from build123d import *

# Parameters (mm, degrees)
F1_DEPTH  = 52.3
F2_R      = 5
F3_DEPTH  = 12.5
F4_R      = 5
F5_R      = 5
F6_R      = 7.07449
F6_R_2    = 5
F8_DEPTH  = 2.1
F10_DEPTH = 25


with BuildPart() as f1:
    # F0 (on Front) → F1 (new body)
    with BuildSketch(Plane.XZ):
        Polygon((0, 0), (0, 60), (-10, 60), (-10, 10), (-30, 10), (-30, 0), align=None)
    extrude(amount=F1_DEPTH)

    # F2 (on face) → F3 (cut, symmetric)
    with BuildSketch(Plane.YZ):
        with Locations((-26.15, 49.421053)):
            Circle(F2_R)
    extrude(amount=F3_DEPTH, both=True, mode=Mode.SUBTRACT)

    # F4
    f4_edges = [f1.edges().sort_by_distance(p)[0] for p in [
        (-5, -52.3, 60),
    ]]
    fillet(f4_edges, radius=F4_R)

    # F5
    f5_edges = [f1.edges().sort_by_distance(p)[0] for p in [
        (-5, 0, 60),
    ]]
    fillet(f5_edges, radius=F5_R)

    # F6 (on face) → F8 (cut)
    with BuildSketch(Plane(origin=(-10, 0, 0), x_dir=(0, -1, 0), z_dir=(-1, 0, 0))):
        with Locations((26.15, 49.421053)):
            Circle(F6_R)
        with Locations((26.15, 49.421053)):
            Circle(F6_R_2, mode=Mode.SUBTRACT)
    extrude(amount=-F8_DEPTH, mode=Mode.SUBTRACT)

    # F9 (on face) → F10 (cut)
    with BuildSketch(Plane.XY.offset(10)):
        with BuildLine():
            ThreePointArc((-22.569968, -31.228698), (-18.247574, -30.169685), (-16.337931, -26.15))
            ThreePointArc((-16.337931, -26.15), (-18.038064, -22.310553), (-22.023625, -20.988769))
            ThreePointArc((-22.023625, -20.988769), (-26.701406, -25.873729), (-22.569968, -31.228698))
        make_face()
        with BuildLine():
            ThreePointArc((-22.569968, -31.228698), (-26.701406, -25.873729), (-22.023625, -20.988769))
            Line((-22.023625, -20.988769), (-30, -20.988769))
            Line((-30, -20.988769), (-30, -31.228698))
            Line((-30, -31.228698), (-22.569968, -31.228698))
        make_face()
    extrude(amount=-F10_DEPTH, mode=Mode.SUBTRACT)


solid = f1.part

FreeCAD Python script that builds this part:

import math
import FreeCAD as App
import Part
import Sketcher
Q = App.Units.Quantity


def edges_at(feature, points):
    """Names of the edges that pass closest to the given points."""
    edges = feature.Shape.Edges
    near = lambda p: min(range(len(edges)), key=lambda i: edges[i].distToShape(Part.Vertex(*p))[0])
    return sorted({f"Edge{near(p) + 1}" for p in points})

doc = App.newDocument("Part")
body = doc.addObject("PartDesign::Body", "Body")

sketch1 = body.newObject("Sketcher::SketchObject", "Sketch")
sketch1.AttachmentSupport = (doc.getObject("XZ_Plane"), [""])
sketch1.MapMode = "FlatFace"
sketch1.addGeometry(Part.LineSegment(App.Vector(0, 0, 0), App.Vector(0, 60, 0)), False)
sketch1.addGeometry(Part.LineSegment(App.Vector(0, 60, 0), App.Vector(-10, 60, 0)), False)
sketch1.addGeometry(Part.LineSegment(App.Vector(-10, 60, 0), App.Vector(-10, 10, 0)), False)
sketch1.addGeometry(Part.LineSegment(App.Vector(-10, 10, 0), App.Vector(-30, 10, 0)), False)
sketch1.addGeometry(Part.LineSegment(App.Vector(-30, 10, 0), App.Vector(-30, 0, 0)), False)
sketch1.addGeometry(Part.LineSegment(App.Vector(-30, 0, 0), App.Vector(0, 0, 0)), False)
sketch1.addConstraint(Sketcher.Constraint("Coincident", 0, 2, 1, 1))
sketch1.addConstraint(Sketcher.Constraint("Coincident", 1, 2, 2, 1))
sketch1.addConstraint(Sketcher.Constraint("Coincident", 2, 2, 3, 1))
sketch1.addConstraint(Sketcher.Constraint("Coincident", 3, 2, 4, 1))
sketch1.addConstraint(Sketcher.Constraint("Coincident", 4, 2, 5, 1))
sketch1.addConstraint(Sketcher.Constraint("Coincident", 5, 2, 0, 1))
sketch1.addConstraint(Sketcher.Constraint("Vertical", 0))
sketch1.addConstraint(Sketcher.Constraint("Horizontal", 1))
sketch1.addConstraint(Sketcher.Constraint("Vertical", 2))
sketch1.addConstraint(Sketcher.Constraint("Horizontal", 3))
sketch1.addConstraint(Sketcher.Constraint("Vertical", 4))
sketch1.addConstraint(Sketcher.Constraint("Horizontal", 5))
sketch1.addConstraint(Sketcher.Constraint("Coincident", 5, 2, -1, 1))
sketch1.addConstraint(Sketcher.Constraint("Equal", 1, 4))
sketch1.addConstraint(Sketcher.Constraint("DistanceX", 1, 2, 1, 1, Q("10 mm")))
sketch1.addConstraint(Sketcher.Constraint("DistanceX", 3, 2, 3, 1, Q("20 mm")))
sketch1.addConstraint(Sketcher.Constraint("DistanceY", 0, 1, 0, 2, Q("60 mm")))
pad1 = body.newObject("PartDesign::Pad", "Pad")
pad1.Profile = sketch1
pad1.Length = 52.3

sketch2 = body.newObject("Sketcher::SketchObject", "Sketch001")
sketch2.AttachmentSupport = (doc.getObject("YZ_Plane"), [""])
sketch2.MapMode = "FlatFace"
sketch2.addGeometry(Part.Circle(App.Vector(-26, 49, 0), App.Vector(0, 0, 1), 5), False)
sketch2.addConstraint(Sketcher.Constraint("Diameter", 0, Q("10 mm")))
sketch2.addConstraint(Sketcher.Constraint("DistanceX", 0, 3, -1, 1, Q("26.15 mm")))
sketch2.addConstraint(Sketcher.Constraint("DistanceY", -1, 1, 0, 3, Q("49.421053 mm")))
pocket1 = body.newObject("PartDesign::Pocket", "Pocket")
pocket1.Profile = sketch2
pocket1.Length = 25
pocket1.Midplane = True
doc.recompute()

fillet = body.newObject("PartDesign::Fillet", "Fillet")
fillet.Base = (pocket1, edges_at(pocket1, [(-5, -52.3, 60)]))
fillet.Radius = 5
doc.recompute()

fillet2 = body.newObject("PartDesign::Fillet", "Fillet001")
fillet2.Base = (fillet, edges_at(fillet, [(-5, 0, 60)]))
fillet2.Radius = 5

sketch3 = body.newObject("Sketcher::SketchObject", "Sketch002")
sketch3.AttachmentSupport = (doc.getObject("YZ_Plane"), [""])
sketch3.MapMode = "FlatFace"
sketch3.AttachmentOffset = App.Placement(App.Vector(0, 0, -10), App.Rotation())
sketch3.addGeometry(Part.Circle(App.Vector(-26, 49, 0), App.Vector(0, 0, 1), 7), False)
sketch3.addGeometry(Part.Circle(App.Vector(-26, 49, 0), App.Vector(0, 0, 1), 5), False)
sketch3.addConstraint(Sketcher.Constraint("Coincident", 1, 3, 0, 3))
sketch3.addConstraint(Sketcher.Constraint("Diameter", 1, Q("10 mm")))
sketch3.addConstraint(Sketcher.Constraint("Diameter", 0, Q("14.14898 mm")))
sketch3.addConstraint(Sketcher.Constraint("DistanceX", 0, 3, -1, 1, Q("26.15 mm")))
sketch3.addConstraint(Sketcher.Constraint("DistanceY", -1, 1, 0, 3, Q("49.421053 mm")))
pocket2 = body.newObject("PartDesign::Pocket", "Pocket001")
pocket2.Profile = sketch3
pocket2.Length = 2.1
pocket2.Reversed = True

sketch4 = body.newObject("Sketcher::SketchObject", "Sketch003")
sketch4.AttachmentSupport = (doc.getObject("XY_Plane"), [""])
sketch4.MapMode = "FlatFace"
sketch4.AttachmentOffset = App.Placement(App.Vector(0, 0, 10), App.Rotation())
sketch4.addGeometry(Part.ArcOfCircle(Part.Circle(App.Vector(-22, -26, 0), App.Vector(0, 0, 1), 5), math.radians(-102), math.radians(0)), False)
sketch4.addGeometry(Part.ArcOfCircle(Part.Circle(App.Vector(-22, -26, 0), App.Vector(0, 0, 1), 5), math.radians(0), math.radians(96)), False)
sketch4.addGeometry(Part.LineSegment(App.Vector(-22, -21, 0), App.Vector(-30, -21, 0)), False)
sketch4.addGeometry(Part.LineSegment(App.Vector(-30, -21, 0), App.Vector(-30, -31, 0)), False)
sketch4.addGeometry(Part.LineSegment(App.Vector(-30, -31, 0), App.Vector(-23, -31, 0)), False)
sketch4.addConstraint(Sketcher.Constraint("Tangent", 0, 2, 1, 1))
sketch4.addConstraint(Sketcher.Constraint("Coincident", 1, 2, 2, 1))
sketch4.addConstraint(Sketcher.Constraint("Coincident", 2, 2, 3, 1))
sketch4.addConstraint(Sketcher.Constraint("Coincident", 3, 2, 4, 1))
sketch4.addConstraint(Sketcher.Constraint("Coincident", 4, 2, 0, 1))
sketch4.addConstraint(Sketcher.Constraint("Horizontal", 2))
sketch4.addConstraint(Sketcher.Constraint("Vertical", 3))
sketch4.addConstraint(Sketcher.Constraint("Horizontal", 4))
sketch4.addConstraint(Sketcher.Constraint("Equal", 0, 1))
sketch4.addConstraint(Sketcher.Constraint("Horizontal", 1, 3, 0, 2))
sketch4.addConstraint(Sketcher.Constraint("DistanceX", 2, 2, -1, 1, Q("30 mm")))
sketch4.addConstraint(Sketcher.Constraint("DistanceY", 0, 3, -1, 1, Q("26.15 mm")))
sketch4.addConstraint(Sketcher.Constraint("Radius", 0, Q("5.18542 mm")))
sketch4.addConstraint(Sketcher.Constraint("DistanceY", 3, 2, 3, 1, Q("10.239929 mm")))
sketch4.addConstraint(Sketcher.Constraint("DistanceY", 3, 2, -1, 1, Q("31.228698 mm")))
sketch4.addConstraint(Sketcher.Constraint("DistanceX", 2, 2, 2, 1, Q("7.976375 mm")))
pocket3 = body.newObject("PartDesign::Pocket", "Pocket002")
pocket3.Profile = sketch4
pocket3.Length = 25

doc.recompute()
